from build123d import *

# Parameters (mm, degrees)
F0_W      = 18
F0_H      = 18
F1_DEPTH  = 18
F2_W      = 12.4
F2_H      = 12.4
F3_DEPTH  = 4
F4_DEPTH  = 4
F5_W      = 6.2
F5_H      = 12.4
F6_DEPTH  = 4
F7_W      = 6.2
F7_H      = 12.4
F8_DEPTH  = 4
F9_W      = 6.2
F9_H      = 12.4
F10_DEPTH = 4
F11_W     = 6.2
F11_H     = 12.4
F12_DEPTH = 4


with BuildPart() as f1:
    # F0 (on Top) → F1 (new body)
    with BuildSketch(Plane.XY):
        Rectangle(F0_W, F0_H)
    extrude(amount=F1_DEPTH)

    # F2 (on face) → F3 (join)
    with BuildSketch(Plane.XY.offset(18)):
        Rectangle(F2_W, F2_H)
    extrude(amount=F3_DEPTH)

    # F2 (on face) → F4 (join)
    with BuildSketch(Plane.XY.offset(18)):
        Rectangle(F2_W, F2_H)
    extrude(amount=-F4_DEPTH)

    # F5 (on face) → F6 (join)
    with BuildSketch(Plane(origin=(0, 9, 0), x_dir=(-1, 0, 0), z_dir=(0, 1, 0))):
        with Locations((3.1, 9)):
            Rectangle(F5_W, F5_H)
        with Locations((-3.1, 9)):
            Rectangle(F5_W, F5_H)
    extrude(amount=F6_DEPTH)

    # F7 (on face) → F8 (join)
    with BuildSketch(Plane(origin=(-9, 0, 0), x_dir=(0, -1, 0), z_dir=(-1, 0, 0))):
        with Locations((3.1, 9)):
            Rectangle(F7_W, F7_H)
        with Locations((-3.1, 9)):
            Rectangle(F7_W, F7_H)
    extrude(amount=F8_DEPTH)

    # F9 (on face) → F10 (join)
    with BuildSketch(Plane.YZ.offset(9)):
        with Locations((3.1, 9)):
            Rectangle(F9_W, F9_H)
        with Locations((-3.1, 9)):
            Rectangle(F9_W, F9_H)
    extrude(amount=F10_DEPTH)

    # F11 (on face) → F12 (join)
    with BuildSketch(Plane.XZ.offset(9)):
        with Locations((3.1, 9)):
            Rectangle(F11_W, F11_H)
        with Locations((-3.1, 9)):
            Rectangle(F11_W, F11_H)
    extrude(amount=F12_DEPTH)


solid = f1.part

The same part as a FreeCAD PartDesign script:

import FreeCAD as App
import Part
import Sketcher

V = App.Vector
Q = App.Units.Quantity

doc = App.newDocument("Part")
params = doc.addObject("Spreadsheet::Sheet", "Params")
for row, (alias, value) in enumerate([
    ("sketch1_width", "18 mm"),
    ("pad1_length", "18 mm"),
    ("sketch2_width", "12.4 mm"),
    ("pad2_length", "4 mm"),
    ("sketch3_width", "12.4 mm"),
    ("pad3_length", "4 mm"),
    ("sketch4_width", "12.4 mm"),
    ("pad4_length", "4 mm"),
    ("sketch5_width", "12.4 mm"),
    ("pad5_length", "4 mm"),
    ("sketch6_width", "12.4 mm"),
    ("pad6_length", "4 mm"),
    ("sketch7_width", "12.4 mm"),
    ("pad7_length", "4 mm"),
], start=1):
    params.set(f"A{row}", alias)
    params.set(f"B{row}", "=" + value)
    params.setAlias(f"B{row}", alias)

body = doc.addObject("PartDesign::Body", "Body")

# Sketch on XY plane
sketch1 = body.newObject("Sketcher::SketchObject", "Sketch")
sketch1.AttachmentSupport = (doc.getObject("XY_Plane"), [""])
sketch1.MapMode = "FlatFace"
sketch1.addGeometry([
    Part.LineSegment(V(-9, 9, 0), V(-9, -9, 0)),
    Part.LineSegment(V(-9, -9, 0), V(9, -9, 0)),
    Part.LineSegment(V(9, -9, 0), V(9, 9, 0)),
    Part.LineSegment(V(9, 9, 0), V(-9, 9, 0)),
], False)
sketch1.addConstraint([
    Sketcher.Constraint("Coincident", 0, 2, 1, 1),
    Sketcher.Constraint("Coincident", 1, 2, 2, 1),
    Sketcher.Constraint("Coincident", 2, 2, 3, 1),
    Sketcher.Constraint("Coincident", 3, 2, 0, 1),
    Sketcher.Constraint("Vertical", 0),
    Sketcher.Constraint("Horizontal", 1),
    Sketcher.Constraint("Vertical", 2),
    Sketcher.Constraint("Horizontal", 3),
    Sketcher.Constraint("Symmetric", 0, 2, 2, 2, -1, 1),
    Sketcher.Constraint("Equal", 3, 0),
    Sketcher.Constraint("DistanceX", 1, 1, 1, 2, Q("18 mm")),
])
sketch1.setExpression("Constraints[10]", "Params.sketch1_width")
pad1 = body.newObject("PartDesign::Pad", "Pad")
pad1.Profile = sketch1
pad1.setExpression("Length", "Params.pad1_length")

# Sketch on XY plane
sketch2 = body.newObject("Sketcher::SketchObject", "Sketch001")
sketch2.AttachmentSupport = (doc.getObject("XY_Plane"), [""])
sketch2.MapMode = "FlatFace"
sketch2.AttachmentOffset = App.Placement(V(0, 0, 18), App.Rotation())
sketch2.addGeometry([
    Part.LineSegment(V(-6, 6, 0), V(-6, -6, 0)),
    Part.LineSegment(V(-6, -6, 0), V(6, -6, 0)),
    Part.LineSegment(V(6, -6, 0), V(6, 6, 0)),
    Part.LineSegment(V(6, 6, 0), V(-6, 6, 0)),
], False)
sketch2.addConstraint([
    Sketcher.Constraint("Coincident", 0, 2, 1, 1),
    Sketcher.Constraint("Coincident", 1, 2, 2, 1),
    Sketcher.Constraint("Coincident", 2, 2, 3, 1),
    Sketcher.Constraint("Coincident", 3, 2, 0, 1),
    Sketcher.Constraint("Vertical", 0),
    Sketcher.Constraint("Horizontal", 1),
    Sketcher.Constraint("Vertical", 2),
    Sketcher.Constraint("Horizontal", 3),
    Sketcher.Constraint("Symmetric", 0, 2, 2, 2, -1, 1),
    Sketcher.Constraint("Equal", 3, 0),
    Sketcher.Constraint("DistanceX", 1, 1, 1, 2, Q("12.4 mm")),
])
sketch2.setExpression("Constraints[10]", "Params.sketch2_width")
pad2 = body.newObject("PartDesign::Pad", "Pad001")
pad2.Profile = sketch2
pad2.setExpression("Length", "Params.pad2_length")

# Sketch on XY plane
sketch3 = body.newObject("Sketcher::SketchObject", "Sketch002")
sketch3.AttachmentSupport = (doc.getObject("XY_Plane"), [""])
sketch3.MapMode = "FlatFace"
sketch3.AttachmentOffset = App.Placement(V(0, 0, 18), App.Rotation())
sketch3.addGeometry([
    Part.LineSegment(V(-6, 6, 0), V(-6, -6, 0)),
    Part.LineSegment(V(-6, -6, 0), V(6, -6, 0)),
    Part.LineSegment(V(6, -6, 0), V(6, 6, 0)),
    Part.LineSegment(V(6, 6, 0), V(-6, 6, 0)),
], False)
sketch3.addConstraint([
    Sketcher.Constraint("Coincident", 0, 2, 1, 1),
    Sketcher.Constraint("Coincident", 1, 2, 2, 1),
    Sketcher.Constraint("Coincident", 2, 2, 3, 1),
    Sketcher.Constraint("Coincident", 3, 2, 0, 1),
    Sketcher.Constraint("Vertical", 0),
    Sketcher.Constraint("Horizontal", 1),
    Sketcher.Constraint("Vertical", 2),
    Sketcher.Constraint("Horizontal", 3),
    Sketcher.Constraint("Symmetric", 0, 2, 2, 2, -1, 1),
    Sketcher.Constraint("Equal", 3, 0),
    Sketcher.Constraint("DistanceX", 1, 1, 1, 2, Q("12.4 mm")),
])
sketch3.setExpression("Constraints[10]", "Params.sketch3_width")
pad3 = body.newObject("PartDesign::Pad", "Pad002")
pad3.Profile = sketch3
pad3.setExpression("Length", "Params.pad3_length")
pad3.Reversed = True

# Sketch on XZ plane
sketch4 = body.newObject("Sketcher::SketchObject", "Sketch003")
sketch4.AttachmentSupport = (doc.getObject("XZ_Plane"), [""])
sketch4.MapMode = "FlatFace"
sketch4.AttachmentOffset = App.Placement(V(0, 0, -9), App.Rotation())
sketch4.addGeometry([
    Part.LineSegment(V(-6, 3, 0), V(-6, 15, 0)),
    Part.LineSegment(V(-6, 15, 0), V(6, 15, 0)),
    Part.LineSegment(V(6, 15, 0), V(6, 3, 0)),
    Part.LineSegment(V(6, 3, 0), V(-6, 3, 0)),
], False)
sketch4.addConstraint([
    Sketcher.Constraint("Coincident", 0, 2, 1, 1),
    Sketcher.Constraint("Coincident", 1, 2, 2, 1),
    Sketcher.Constraint("Coincident", 2, 2, 3, 1),
    Sketcher.Constraint("Coincident", 3, 2, 0, 1),
    Sketcher.Constraint("Vertical", 0),
    Sketcher.Constraint("Horizontal", 1),
    Sketcher.Constraint("Vertical", 2),
    Sketcher.Constraint("Horizontal", 3),
    Sketcher.Constraint("Equal", 3, 0),
    Sketcher.Constraint("DistanceX", 1, 1, 1, 2, Q("12.4 mm")),
    Sketcher.Constraint("DistanceX", 0, 2, -1, 1, Q("6.2 mm")),
    Sketcher.Constraint("DistanceY", -1, 1, 0, 2, Q("15.2 mm")),
])
sketch4.setExpression("Constraints[9]", "Params.sketch4_width")
pad4 = body.newObject("PartDesign::Pad", "Pad003")
pad4.Profile = sketch4
pad4.setExpression("Length", "Params.pad4_length")
pad4.Reversed = True

# Sketch on YZ plane
sketch5 = body.newObject("Sketcher::SketchObject", "Sketch004")
sketch5.AttachmentSupport = (doc.getObject("YZ_Plane"), [""])
sketch5.MapMode = "FlatFace"
sketch5.AttachmentOffset = App.Placement(V(0, 0, -9), App.Rotation())
sketch5.addGeometry([
    Part.LineSegment(V(-6, 3, 0), V(-6, 15, 0)),
    Part.LineSegment(V(-6, 15, 0), V(6, 15, 0)),
    Part.LineSegment(V(6, 15, 0), V(6, 3, 0)),
    Part.LineSegment(V(6, 3, 0), V(-6, 3, 0)),
], False)
sketch5.addConstraint([
    Sketcher.Constraint("Coincident", 0, 2, 1, 1),
    Sketcher.Constraint("Coincident", 1, 2, 2, 1),
    Sketcher.Constraint("Coincident", 2, 2, 3, 1),
    Sketcher.Constraint("Coincident", 3, 2, 0, 1),
    Sketcher.Constraint("Vertical", 0),
    Sketcher.Constraint("Horizontal", 1),
    Sketcher.Constraint("Vertical", 2),
    Sketcher.Constraint("Horizontal", 3),
    Sketcher.Constraint("Equal", 3, 0),
    Sketcher.Constraint("DistanceX", 1, 1, 1, 2, Q("12.4 mm")),
    Sketcher.Constraint("DistanceX", 0, 2, -1, 1, Q("6.2 mm")),
    Sketcher.Constraint("DistanceY", -1, 1, 0, 2, Q("15.2 mm")),
])
sketch5.setExpression("Constraints[9]", "Params.sketch5_width")
pad5 = body.newObject("PartDesign::Pad", "Pad004")
pad5.Profile = sketch5
pad5.setExpression("Length", "Params.pad5_length")
pad5.Reversed = True

# Sketch on YZ plane
sketch6 = body.newObject("Sketcher::SketchObject", "Sketch005")
sketch6.AttachmentSupport = (doc.getObject("YZ_Plane"), [""])
sketch6.MapMode = "FlatFace"
sketch6.AttachmentOffset = App.Placement(V(0, 0, 9), App.Rotation())
sketch6.addGeometry([
    Part.LineSegment(V(6, 3, 0), V(6, 15, 0)),
    Part.LineSegment(V(6, 15, 0), V(-6, 15, 0)),
    Part.LineSegment(V(-6, 15, 0), V(-6, 3, 0)),
    Part.LineSegment(V(-6, 3, 0), V(6, 3, 0)),
], False)
sketch6.addConstraint([
    Sketcher.Constraint("Coincident", 0, 2, 1, 1),
    Sketcher.Constraint("Coincident", 1, 2, 2, 1),
    Sketcher.Constraint("Coincident", 2, 2, 3, 1),
    Sketcher.Constraint("Coincident", 3, 2, 0, 1),
    Sketcher.Constraint("Vertical", 0),
    Sketcher.Constraint("Horizontal", 1),
    Sketcher.Constraint("Vertical", 2),
    Sketcher.Constraint("Horizontal", 3),
    Sketcher.Constraint("Equal", 3, 0),
    Sketcher.Constraint("DistanceX", 1, 2, 1, 1, Q("12.4 mm")),
    Sketcher.Constraint("DistanceX", -1, 1, 0, 2, Q("6.2 mm")),
    Sketcher.Constraint("DistanceY", -1, 1, 0, 2, Q("15.2 mm")),
])
sketch6.setExpression("Constraints[9]", "Params.sketch6_width")
pad6 = body.newObject("PartDesign::Pad", "Pad005")
pad6.Profile = sketch6
pad6.setExpression("Length", "Params.pad6_length")

# Sketch on XZ plane
sketch7 = body.newObject("Sketcher::SketchObject", "Sketch006")
sketch7.AttachmentSupport = (doc.getObject("XZ_Plane"), [""])
sketch7.MapMode = "FlatFace"
sketch7.AttachmentOffset = App.Placement(V(0, 0, 9), App.Rotation())
sketch7.addGeometry([
    Part.LineSegment(V(6, 3, 0), V(6, 15, 0)),
    Part.LineSegment(V(6, 15, 0), V(-6, 15, 0)),
    Part.LineSegment(V(-6, 15, 0), V(-6, 3, 0)),
    Part.LineSegment(V(-6, 3, 0), V(6, 3, 0)),
], False)
sketch7.addConstraint([
    Sketcher.Constraint("Coincident", 0, 2, 1, 1),
    Sketcher.Constraint("Coincident", 1, 2, 2, 1),
    Sketcher.Constraint("Coincident", 2, 2, 3, 1),
    Sketcher.Constraint("Coincident", 3, 2, 0, 1),
    Sketcher.Constraint("Vertical", 0),
    Sketcher.Constraint("Horizontal", 1),
    Sketcher.Constraint("Vertical", 2),
    Sketcher.Constraint("Horizontal", 3),
    Sketcher.Constraint("Equal", 3, 0),
    Sketcher.Constraint("DistanceX", 1, 2, 1, 1, Q("12.4 mm")),
    Sketcher.Constraint("DistanceX", -1, 1, 0, 2, Q("6.2 mm")),
    Sketcher.Constraint("DistanceY", -1, 1, 0, 2, Q("15.2 mm")),
])
sketch7.setExpression("Constraints[9]", "Params.sketch7_width")
pad7 = body.newObject("PartDesign::Pad", "Pad006")
pad7.Profile = sketch7
pad7.setExpression("Length", "Params.pad7_length")

doc.recompute()
